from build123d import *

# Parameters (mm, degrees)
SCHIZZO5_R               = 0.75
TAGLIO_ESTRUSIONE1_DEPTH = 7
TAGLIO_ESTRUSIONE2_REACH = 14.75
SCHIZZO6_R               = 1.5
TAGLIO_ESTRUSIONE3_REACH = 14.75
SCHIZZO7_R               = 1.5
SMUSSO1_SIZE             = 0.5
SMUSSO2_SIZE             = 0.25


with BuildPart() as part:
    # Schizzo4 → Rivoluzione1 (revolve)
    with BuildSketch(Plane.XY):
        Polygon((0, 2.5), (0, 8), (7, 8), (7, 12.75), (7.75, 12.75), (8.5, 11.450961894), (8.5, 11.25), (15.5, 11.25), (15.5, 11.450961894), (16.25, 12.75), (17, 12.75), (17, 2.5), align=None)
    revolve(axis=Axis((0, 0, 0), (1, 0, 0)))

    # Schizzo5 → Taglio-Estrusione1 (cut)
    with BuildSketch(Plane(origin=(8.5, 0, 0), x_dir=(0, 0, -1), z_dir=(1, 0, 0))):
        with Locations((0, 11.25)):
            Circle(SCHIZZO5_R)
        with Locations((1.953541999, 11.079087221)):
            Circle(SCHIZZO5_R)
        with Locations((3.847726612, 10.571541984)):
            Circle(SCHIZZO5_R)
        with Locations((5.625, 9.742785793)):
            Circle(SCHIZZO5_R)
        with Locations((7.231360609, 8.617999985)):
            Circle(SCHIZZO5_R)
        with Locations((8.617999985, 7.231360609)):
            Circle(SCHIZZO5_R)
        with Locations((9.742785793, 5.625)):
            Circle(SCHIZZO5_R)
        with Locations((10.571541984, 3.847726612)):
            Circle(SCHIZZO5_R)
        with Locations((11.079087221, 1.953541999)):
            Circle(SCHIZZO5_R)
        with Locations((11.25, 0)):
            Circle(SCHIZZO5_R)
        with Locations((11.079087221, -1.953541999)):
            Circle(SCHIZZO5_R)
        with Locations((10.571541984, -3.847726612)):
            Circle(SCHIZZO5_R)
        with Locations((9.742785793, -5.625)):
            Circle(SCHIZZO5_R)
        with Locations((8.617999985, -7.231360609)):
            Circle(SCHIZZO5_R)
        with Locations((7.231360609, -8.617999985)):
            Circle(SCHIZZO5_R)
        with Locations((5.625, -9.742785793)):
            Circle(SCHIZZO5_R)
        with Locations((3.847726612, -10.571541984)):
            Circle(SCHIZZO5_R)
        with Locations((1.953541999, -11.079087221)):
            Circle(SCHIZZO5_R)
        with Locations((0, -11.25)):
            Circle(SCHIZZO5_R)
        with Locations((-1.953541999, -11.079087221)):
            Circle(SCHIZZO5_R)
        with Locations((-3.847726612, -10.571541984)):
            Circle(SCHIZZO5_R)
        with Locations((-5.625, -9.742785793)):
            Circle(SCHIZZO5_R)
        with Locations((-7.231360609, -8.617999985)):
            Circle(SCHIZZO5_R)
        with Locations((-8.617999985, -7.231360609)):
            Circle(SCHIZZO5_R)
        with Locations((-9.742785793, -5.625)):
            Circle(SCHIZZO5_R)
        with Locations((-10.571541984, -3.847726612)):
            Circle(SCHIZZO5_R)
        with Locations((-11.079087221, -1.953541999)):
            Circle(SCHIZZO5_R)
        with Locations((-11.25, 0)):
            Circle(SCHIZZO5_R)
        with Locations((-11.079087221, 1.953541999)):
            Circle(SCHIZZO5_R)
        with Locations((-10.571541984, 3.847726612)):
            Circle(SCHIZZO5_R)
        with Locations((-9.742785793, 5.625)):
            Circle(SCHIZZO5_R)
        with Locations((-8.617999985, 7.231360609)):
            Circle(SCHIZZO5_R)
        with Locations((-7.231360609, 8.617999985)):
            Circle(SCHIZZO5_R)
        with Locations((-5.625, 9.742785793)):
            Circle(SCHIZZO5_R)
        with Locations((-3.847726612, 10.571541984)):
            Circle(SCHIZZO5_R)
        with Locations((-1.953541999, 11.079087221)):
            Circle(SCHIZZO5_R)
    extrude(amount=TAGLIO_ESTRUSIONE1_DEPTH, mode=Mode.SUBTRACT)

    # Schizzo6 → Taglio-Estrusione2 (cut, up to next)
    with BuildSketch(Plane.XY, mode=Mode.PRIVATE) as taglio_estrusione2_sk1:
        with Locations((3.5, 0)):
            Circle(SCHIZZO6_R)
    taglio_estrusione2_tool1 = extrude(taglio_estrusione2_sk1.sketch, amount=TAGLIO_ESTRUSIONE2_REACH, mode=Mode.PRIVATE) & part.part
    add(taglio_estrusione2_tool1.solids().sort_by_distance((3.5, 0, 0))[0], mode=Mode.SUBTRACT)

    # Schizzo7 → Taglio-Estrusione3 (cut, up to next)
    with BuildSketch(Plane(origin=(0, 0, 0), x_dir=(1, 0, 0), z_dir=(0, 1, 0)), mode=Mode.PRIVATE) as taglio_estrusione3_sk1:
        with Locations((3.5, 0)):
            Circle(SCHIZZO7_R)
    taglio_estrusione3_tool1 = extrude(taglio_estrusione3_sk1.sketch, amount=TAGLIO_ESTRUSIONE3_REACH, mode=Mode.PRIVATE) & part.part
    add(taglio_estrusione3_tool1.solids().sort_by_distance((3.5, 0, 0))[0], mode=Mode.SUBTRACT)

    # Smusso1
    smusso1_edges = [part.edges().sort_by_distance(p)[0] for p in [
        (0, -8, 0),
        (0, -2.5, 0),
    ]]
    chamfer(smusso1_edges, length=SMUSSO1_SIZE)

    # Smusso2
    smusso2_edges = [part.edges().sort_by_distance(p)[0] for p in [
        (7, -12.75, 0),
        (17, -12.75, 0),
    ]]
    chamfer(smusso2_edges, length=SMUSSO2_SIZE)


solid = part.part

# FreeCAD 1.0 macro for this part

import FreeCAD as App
import Part
import Sketcher

V = App.Vector
Q = App.Units.Quantity


def edges_at(feature, points):
    """Names of the edges that pass closest to the given points."""
    edges = feature.Shape.Edges
    near = lambda p: min(range(len(edges)), key=lambda i: edges[i].distToShape(Part.Vertex(*p))[0])
    return sorted({f"Edge{near(p) + 1}" for p in points})


def add_polygon(sketch, points):
    """Adds a closed chain of lines whose ends are joined by coincident constraints."""
    first, n = sketch.GeometryCount, len(points)
    for a, b in zip(points, points[1:] + points[:1]):
        sketch.addGeometry(Part.LineSegment(App.Vector(*a, 0), App.Vector(*b, 0)), False)
    for i in range(n):
        sketch.addConstraint(Sketcher.Constraint("Coincident", first + i, 2, first + (i + 1) % n, 1))

doc = App.newDocument("Part")
body = doc.addObject("PartDesign::Body", "Body")

sketch1 = body.newObject("Sketcher::SketchObject", "Sketch")
sketch1.AttachmentSupport = (doc.getObject("XY_Plane"), [""])
sketch1.MapMode = "FlatFace"
add_polygon(sketch1, [(0, 8), (0, 2.5), (17, 2.5), (17, 12.75), (16.25, 12.75), (15.5, 11.45), (15.5, 11.25), (8.5, 11.25), (8.5, 11.45), (7.75, 12.75), (7, 12.75), (7, 8)])
sketch1.addConstraint(Sketcher.Constraint("Vertical", 0))
sketch1.addConstraint(Sketcher.Constraint("Horizontal", 1))
sketch1.addConstraint(Sketcher.Constraint("Vertical", 2))
sketch1.addConstraint(Sketcher.Constraint("Horizontal", 3))
sketch1.addConstraint(Sketcher.Constraint("Vertical", 5))
sketch1.addConstraint(Sketcher.Constraint("Horizontal", 6))
sketch1.addConstraint(Sketcher.Constraint("Vertical", 7))
sketch1.addConstraint(Sketcher.Constraint("Horizontal", 9))
sketch1.addConstraint(Sketcher.Constraint("Vertical", 10))
sketch1.addConstraint(Sketcher.Constraint("Horizontal", 11))
sketch1.addConstraint(Sketcher.Constraint("PointOnObject", 0, 2, -2))
sketch1.addConstraint(Sketcher.Constraint("Horizontal", 4, 2, 7, 2))
sketch1.addConstraint(Sketcher.Constraint("Horizontal", 3, 2, 8, 2))
sketch1.addConstraint(Sketcher.Constraint("Equal", 3, 9))
sketch1.addConstraint(Sketcher.Constraint("Equal", 6, 11))
sketch1.addConstraint(Sketcher.Constraint("Equal", 4, 8))
sketch1.addConstraint(Sketcher.Constraint("DistanceX", 1, 1, 1, 2, 17.0))
sketch1.addConstraint(Sketcher.Constraint("DistanceX", 6, 2, 6, 1, 7.0))
sketch1.addConstraint(Sketcher.Constraint("Angle", 4, Q("-120 deg")))
sketch1.addConstraint(Sketcher.Constraint("DistanceY", 0, 2, 0, 1, 5.5))
sketch1.addConstraint(Sketcher.Constraint("DistanceY", -1, 1, 10, 2, 8.0))
sketch1.addConstraint(Sketcher.Constraint("Distance", 4, 1.5))
sketch1.addConstraint(Sketcher.Constraint("DistanceY", 2, 1, 2, 2, 10.25))
sketch1.addConstraint(Sketcher.Constraint("DistanceY", 5, 2, 3, 2, 1.5))
revolution = body.newObject("PartDesign::Revolution", "Revolution")
revolution.Profile = sketch1
revolution.ReferenceAxis = (sketch1, ["H_Axis"])
revolution.Angle = 360

sketch2 = body.newObject("Sketcher::SketchObject", "Sketch001")
sketch2.AttachmentSupport = (doc.getObject("YZ_Plane"), [""])
sketch2.MapMode = "FlatFace"
sketch2.AttachmentOffset = App.Placement(V(0, 0, 8.5), App.Rotation())
sketch2.addGeometry(Part.Circle(V(11.2, 0, 0), V(0, 0, 1), 0.8), False)
sketch2.addGeometry(Part.Circle(V(11.1, -2, 0), V(0, 0, 1), 0.8), False)
sketch2.addGeometry(Part.Circle(V(10.6, -3.8, 0), V(0, 0, 1), 0.8), False)
sketch2.addGeometry(Part.Circle(V(9.7, -5.6, 0), V(0, 0, 1), 0.8), False)
sketch2.addGeometry(Part.Circle(V(8.6, -7.2, 0), V(0, 0, 1), 0.8), False)
sketch2.addGeometry(Part.Circle(V(7.2, -8.6, 0), V(0, 0, 1), 0.8), False)
sketch2.addGeometry(Part.Circle(V(5.6, -9.7, 0), V(0, 0, 1), 0.8), False)
sketch2.addGeometry(Part.Circle(V(3.8, -10.6, 0), V(0, 0, 1), 0.8), False)
sketch2.addGeometry(Part.Circle(V(2, -11.1, 0), V(0, 0, 1), 0.8), False)
sketch2.addGeometry(Part.Circle(V(0, -11.2, 0), V(0, 0, 1), 0.8), False)
sketch2.addGeometry(Part.Circle(V(-2, -11.1, 0), V(0, 0, 1), 0.8), False)
sketch2.addGeometry(Part.Circle(V(-3.8, -10.6, 0), V(0, 0, 1), 0.8), False)
sketch2.addGeometry(Part.Circle(V(-5.6, -9.7, 0), V(0, 0, 1), 0.8), False)
sketch2.addGeometry(Part.Circle(V(-7.2, -8.6, 0), V(0, 0, 1), 0.8), False)
sketch2.addGeometry(Part.Circle(V(-8.6, -7.2, 0), V(0, 0, 1), 0.8), False)
sketch2.addGeometry(Part.Circle(V(-9.7, -5.6, 0), V(0, 0, 1), 0.8), False)
sketch2.addGeometry(Part.Circle(V(-10.6, -3.8, 0), V(0, 0, 1), 0.8), False)
sketch2.addGeometry(Part.Circle(V(-11.1, -2, 0), V(0, 0, 1), 0.8), False)
sketch2.addGeometry(Part.Circle(V(-11.2, 0, 0), V(0, 0, 1), 0.8), False)
sketch2.addGeometry(Part.Circle(V(-11.1, 2, 0), V(0, 0, 1), 0.8), False)
sketch2.addGeometry(Part.Circle(V(-10.6, 3.8, 0), V(0, 0, 1), 0.8), False)
sketch2.addGeometry(Part.Circle(V(-9.7, 5.6, 0), V(0, 0, 1), 0.8), False)
sketch2.addGeometry(Part.Circle(V(-8.6, 7.2, 0), V(0, 0, 1), 0.8), False)
sketch2.addGeometry(Part.Circle(V(-7.2, 8.6, 0), V(0, 0, 1), 0.8), False)
sketch2.addGeometry(Part.Circle(V(-5.6, 9.7, 0), V(0, 0, 1), 0.8), False)
sketch2.addGeometry(Part.Circle(V(-3.8, 10.6, 0), V(0, 0, 1), 0.8), False)
sketch2.addGeometry(Part.Circle(V(-2, 11.1, 0), V(0, 0, 1), 0.8), False)
sketch2.addGeometry(Part.Circle(V(0, 11.2, 0), V(0, 0, 1), 0.8), False)
sketch2.addGeometry(Part.Circle(V(2, 11.1, 0), V(0, 0, 1), 0.8), False)
sketch2.addGeometry(Part.Circle(V(3.8, 10.6, 0), V(0, 0, 1), 0.8), False)
sketch2.addGeometry(Part.Circle(V(5.6, 9.7, 0), V(0, 0, 1), 0.8), False)
sketch2.addGeometry(Part.Circle(V(7.2, 8.6, 0), V(0, 0, 1), 0.8), False)
sketch2.addGeometry(Part.Circle(V(8.6, 7.2, 0), V(0, 0, 1), 0.8), False)
sketch2.addGeometry(Part.Circle(V(9.7, 5.6, 0), V(0, 0, 1), 0.8), False)
sketch2.addGeometry(Part.Circle(V(10.6, 3.8, 0), V(0, 0, 1), 0.8), False)
sketch2.addGeometry(Part.Circle(V(11.1, 2, 0), V(0, 0, 1), 0.8), False)
sketch2.addConstraint(Sketcher.Constraint("Equal", 0, 1))
sketch2.addConstraint(Sketcher.Constraint("Equal", 1, 2))
sketch2.addConstraint(Sketcher.Constraint("Equal", 2, 3))
sketch2.addConstraint(Sketcher.Constraint("Equal", 3, 4))
sketch2.addConstraint(Sketcher.Constraint("Equal", 4, 5))
sketch2.addConstraint(Sketcher.Constraint("Equal", 5, 6))
sketch2.addConstraint(Sketcher.Constraint("Equal", 6, 7))
sketch2.addConstraint(Sketcher.Constraint("Equal", 7, 8))
sketch2.addConstraint(Sketcher.Constraint("Equal", 8, 9))
sketch2.addConstraint(Sketcher.Constraint("Equal", 9, 10))
sketch2.addConstraint(Sketcher.Constraint("Equal", 10, 11))
sketch2.addConstraint(Sketcher.Constraint("Equal", 11, 12))
sketch2.addConstraint(Sketcher.Constraint("Equal", 12, 13))
sketch2.addConstraint(Sketcher.Constraint("Equal", 13, 14))
sketch2.addConstraint(Sketcher.Constraint("Equal", 14, 15))
sketch2.addConstraint(Sketcher.Constraint("Equal", 15, 16))
sketch2.addConstraint(Sketcher.Constraint("Equal", 16, 17))
sketch2.addConstraint(Sketcher.Constraint("Equal", 17, 18))
sketch2.addConstraint(Sketcher.Constraint("Equal", 18, 19))
sketch2.addConstraint(Sketcher.Constraint("Equal", 19, 20))
sketch2.addConstraint(Sketcher.Constraint("Equal", 20, 21))
sketch2.addConstraint(Sketcher.Constraint("Equal", 21, 22))
sketch2.addConstraint(Sketcher.Constraint("Equal", 22, 23))
sketch2.addConstraint(Sketcher.Constraint("Equal", 23, 24))
sketch2.addConstraint(Sketcher.Constraint("Equal", 24, 25))
sketch2.addConstraint(Sketcher.Constraint("Equal", 25, 26))
sketch2.addConstraint(Sketcher.Constraint("Equal", 26, 27))
sketch2.addConstraint(Sketcher.Constraint("Equal", 27, 28))
sketch2.addConstraint(Sketcher.Constraint("Equal", 28, 29))
sketch2.addConstraint(Sketcher.Constraint("Equal", 29, 30))
sketch2.addConstraint(Sketcher.Constraint("Equal", 30, 31))
sketch2.addConstraint(Sketcher.Constraint("Equal", 31, 32))
sketch2.addConstraint(Sketcher.Constraint("Equal", 32, 33))
sketch2.addConstraint(Sketcher.Constraint("Equal", 33, 34))
sketch2.addConstraint(Sketcher.Constraint("Equal", 34, 35))
sketch2.addConstraint(Sketcher.Constraint("Symmetric", 0, 3, 18, 3, -1, 1))
sketch2.addConstraint(Sketcher.Constraint("Symmetric", 1, 3, 19, 3, -1, 1))
sketch2.addConstraint(Sketcher.Constraint("Symmetric", 2, 3, 20, 3, -1, 1))
sketch2.addConstraint(Sketcher.Constraint("Symmetric", 3, 3, 21, 3, -1, 1))
sketch2.addConstraint(Sketcher.Constraint("Symmetric", 4, 3, 22, 3, -1, 1))
sketch2.addConstraint(Sketcher.Constraint("Symmetric", 5, 3, 23, 3, -1, 1))
sketch2.addConstraint(Sketcher.Constraint("Symmetric", 6, 3, 24, 3, -1, 1))
sketch2.addConstraint(Sketcher.Constraint("Symmetric", 7, 3, 25, 3, -1, 1))
sketch2.addConstraint(Sketcher.Constraint("Symmetric", 8, 3, 26, 3, -1, 1))
sketch2.addConstraint(Sketcher.Constraint("Symmetric", 9, 3, 27, 3, -1, 1))
sketch2.addConstraint(Sketcher.Constraint("Symmetric", 10, 3, 28, 3, -1, 1))
sketch2.addConstraint(Sketcher.Constraint("Symmetric", 11, 3, 29, 3, -1, 1))
sketch2.addConstraint(Sketcher.Constraint("Symmetric", 12, 3, 30, 3, -1, 1))
sketch2.addConstraint(Sketcher.Constraint("Symmetric", 13, 3, 31, 3, -1, 1))
sketch2.addConstraint(Sketcher.Constraint("Symmetric", 14, 3, 32, 3, -1, 1))
sketch2.addConstraint(Sketcher.Constraint("Symmetric", 15, 3, 33, 3, -1, 1))
sketch2.addConstraint(Sketcher.Constraint("Symmetric", 16, 3, 34, 3, -1, 1))
sketch2.addConstraint(Sketcher.Constraint("Symmetric", 17, 3, 35, 3, -1, 1))
sketch2.addConstraint(Sketcher.Constraint("Symmetric", 8, 3, 10, 3, -2))
sketch2.addConstraint(Sketcher.Constraint("Symmetric", 7, 3, 11, 3, -2))
sketch2.addConstraint(Sketcher.Constraint("Symmetric", 6, 3, 12, 3, -2))
sketch2.addConstraint(Sketcher.Constraint("Symmetric", 5, 3, 13, 3, -2))
sketch2.addConstraint(Sketcher.Constraint("Symmetric", 4, 3, 14, 3, -2))
sketch2.addConstraint(Sketcher.Constraint("Symmetric", 3, 3, 15, 3, -2))
sketch2.addConstraint(Sketcher.Constraint("Symmetric", 2, 3, 16, 3, -2))
sketch2.addConstraint(Sketcher.Constraint("Symmetric", 1, 3, 17, 3, -2))
sketch2.addConstraint(Sketcher.Constraint("PointOnObject", 0, 3, -1))
sketch2.addConstraint(Sketcher.Constraint("PointOnObject", 9, 3, -2))
sketch2.addConstraint(Sketcher.Constraint("Diameter", 0, 1.5))
sketch2.addConstraint(Sketcher.Constraint("DistanceX", -1, 1, 0, 3, 11.25))
sketch2.addConstraint(Sketcher.Constraint("DistanceY", 9, 3, -1, 1, 11.25))
sketch2.addConstraint(Sketcher.Constraint("DistanceY", 3, 3, -1, 1, 5.625))
sketch2.addConstraint(Sketcher.Constraint("DistanceX", -1, 1, 4, 3, 8.618))
sketch2.addConstraint(Sketcher.Constraint("DistanceY", 5, 3, -1, 1, 8.618))
sketch2.addConstraint(Sketcher.Constraint("DistanceX", -1, 1, 6, 3, 5.625))
sketch2.addConstraint(Sketcher.Constraint("DistanceX", 3, 3, 1, 3, 1.336301))
sketch2.addConstraint(Sketcher.Constraint("DistanceY", 8, 3, 6, 3, 1.336301))
sketch2.addConstraint(Sketcher.Constraint("DistanceY", 1, 3, -1, 1, 1.953542))
sketch2.addConstraint(Sketcher.Constraint("DistanceX", -1, 1, 2, 3, 10.571542))
sketch2.addConstraint(Sketcher.Constraint("DistanceY", 4, 3, -1, 1, 7.231361))
sketch2.addConstraint(Sketcher.Constraint("DistanceX", -1, 1, 5, 3, 7.231361))
sketch2.addConstraint(Sketcher.Constraint("DistanceY", 7, 3, -1, 1, 10.571542))
sketch2.addConstraint(Sketcher.Constraint("DistanceX", -1, 1, 8, 3, 1.953542))
sketch2.addConstraint(Sketcher.Constraint("DistanceY", 6, 3, 2, 3, 5.895059))
sketch2.addConstraint(Sketcher.Constraint("DistanceX", 7, 3, 3, 3, 5.895059))
sketch2.addConstraint(Sketcher.Constraint("DistanceX", 10, 3, 7, 3, 5.801269))
sketch2.addConstraint(Sketcher.Constraint("DistanceY", 16, 3, 19, 3, 5.801269))
pocket1 = body.newObject("PartDesign::Pocket", "Pocket")
pocket1.Profile = sketch2
pocket1.Length = 7
pocket1.Reversed = True

sketch3 = body.newObject("Sketcher::SketchObject", "Sketch002")
sketch3.AttachmentSupport = (doc.getObject("XY_Plane"), [""])
sketch3.MapMode = "FlatFace"
sketch3.addGeometry(Part.Circle(V(3.5, 0, 0), V(0, 0, 1), 1.5), False)
sketch3.addConstraint(Sketcher.Constraint("PointOnObject", 0, 3, -1))
sketch3.addConstraint(Sketcher.Constraint("Diameter", 0, 3.0))
sketch3.addConstraint(Sketcher.Constraint("DistanceX", -1, 1, 0, 3, 3.5))
pocket2 = body.newObject("PartDesign::Pocket", "Pocket001")
pocket2.Profile = sketch3
pocket2.Length = 8
pocket2.Reversed = True

sketch4 = body.newObject("Sketcher::SketchObject", "Sketch003")
sketch4.AttachmentSupport = (doc.getObject("XZ_Plane"), [""])
sketch4.MapMode = "FlatFace"
sketch4.addGeometry(Part.Circle(V(3.5, 0, 0), V(0, 0, 1), 1.5), False)
sketch4.addConstraint(Sketcher.Constraint("PointOnObject", 0, 3, -1))
sketch4.addConstraint(Sketcher.Constraint("Diameter", 0, 3.0))
sketch4.addConstraint(Sketcher.Constraint("DistanceX", -1, 1, 0, 3, 3.5))
pocket3 = body.newObject("PartDesign::Pocket", "Pocket002")
pocket3.Profile = sketch4
pocket3.Length = 8
doc.recompute()

chamfer = body.newObject("PartDesign::Chamfer", "Chamfer")
chamfer.Base = (pocket3, edges_at(pocket3, [(0, -8, 0), (0, -2.5, 0)]))
chamfer.Size = 0.5
doc.recompute()

chamfer2 = body.newObject("PartDesign::Chamfer", "Chamfer001")
chamfer2.Base = (chamfer, edges_at(chamfer, [(7, -12.75, 0), (17, -12.75, 0)]))
chamfer2.Size = 0.25

doc.recompute()
